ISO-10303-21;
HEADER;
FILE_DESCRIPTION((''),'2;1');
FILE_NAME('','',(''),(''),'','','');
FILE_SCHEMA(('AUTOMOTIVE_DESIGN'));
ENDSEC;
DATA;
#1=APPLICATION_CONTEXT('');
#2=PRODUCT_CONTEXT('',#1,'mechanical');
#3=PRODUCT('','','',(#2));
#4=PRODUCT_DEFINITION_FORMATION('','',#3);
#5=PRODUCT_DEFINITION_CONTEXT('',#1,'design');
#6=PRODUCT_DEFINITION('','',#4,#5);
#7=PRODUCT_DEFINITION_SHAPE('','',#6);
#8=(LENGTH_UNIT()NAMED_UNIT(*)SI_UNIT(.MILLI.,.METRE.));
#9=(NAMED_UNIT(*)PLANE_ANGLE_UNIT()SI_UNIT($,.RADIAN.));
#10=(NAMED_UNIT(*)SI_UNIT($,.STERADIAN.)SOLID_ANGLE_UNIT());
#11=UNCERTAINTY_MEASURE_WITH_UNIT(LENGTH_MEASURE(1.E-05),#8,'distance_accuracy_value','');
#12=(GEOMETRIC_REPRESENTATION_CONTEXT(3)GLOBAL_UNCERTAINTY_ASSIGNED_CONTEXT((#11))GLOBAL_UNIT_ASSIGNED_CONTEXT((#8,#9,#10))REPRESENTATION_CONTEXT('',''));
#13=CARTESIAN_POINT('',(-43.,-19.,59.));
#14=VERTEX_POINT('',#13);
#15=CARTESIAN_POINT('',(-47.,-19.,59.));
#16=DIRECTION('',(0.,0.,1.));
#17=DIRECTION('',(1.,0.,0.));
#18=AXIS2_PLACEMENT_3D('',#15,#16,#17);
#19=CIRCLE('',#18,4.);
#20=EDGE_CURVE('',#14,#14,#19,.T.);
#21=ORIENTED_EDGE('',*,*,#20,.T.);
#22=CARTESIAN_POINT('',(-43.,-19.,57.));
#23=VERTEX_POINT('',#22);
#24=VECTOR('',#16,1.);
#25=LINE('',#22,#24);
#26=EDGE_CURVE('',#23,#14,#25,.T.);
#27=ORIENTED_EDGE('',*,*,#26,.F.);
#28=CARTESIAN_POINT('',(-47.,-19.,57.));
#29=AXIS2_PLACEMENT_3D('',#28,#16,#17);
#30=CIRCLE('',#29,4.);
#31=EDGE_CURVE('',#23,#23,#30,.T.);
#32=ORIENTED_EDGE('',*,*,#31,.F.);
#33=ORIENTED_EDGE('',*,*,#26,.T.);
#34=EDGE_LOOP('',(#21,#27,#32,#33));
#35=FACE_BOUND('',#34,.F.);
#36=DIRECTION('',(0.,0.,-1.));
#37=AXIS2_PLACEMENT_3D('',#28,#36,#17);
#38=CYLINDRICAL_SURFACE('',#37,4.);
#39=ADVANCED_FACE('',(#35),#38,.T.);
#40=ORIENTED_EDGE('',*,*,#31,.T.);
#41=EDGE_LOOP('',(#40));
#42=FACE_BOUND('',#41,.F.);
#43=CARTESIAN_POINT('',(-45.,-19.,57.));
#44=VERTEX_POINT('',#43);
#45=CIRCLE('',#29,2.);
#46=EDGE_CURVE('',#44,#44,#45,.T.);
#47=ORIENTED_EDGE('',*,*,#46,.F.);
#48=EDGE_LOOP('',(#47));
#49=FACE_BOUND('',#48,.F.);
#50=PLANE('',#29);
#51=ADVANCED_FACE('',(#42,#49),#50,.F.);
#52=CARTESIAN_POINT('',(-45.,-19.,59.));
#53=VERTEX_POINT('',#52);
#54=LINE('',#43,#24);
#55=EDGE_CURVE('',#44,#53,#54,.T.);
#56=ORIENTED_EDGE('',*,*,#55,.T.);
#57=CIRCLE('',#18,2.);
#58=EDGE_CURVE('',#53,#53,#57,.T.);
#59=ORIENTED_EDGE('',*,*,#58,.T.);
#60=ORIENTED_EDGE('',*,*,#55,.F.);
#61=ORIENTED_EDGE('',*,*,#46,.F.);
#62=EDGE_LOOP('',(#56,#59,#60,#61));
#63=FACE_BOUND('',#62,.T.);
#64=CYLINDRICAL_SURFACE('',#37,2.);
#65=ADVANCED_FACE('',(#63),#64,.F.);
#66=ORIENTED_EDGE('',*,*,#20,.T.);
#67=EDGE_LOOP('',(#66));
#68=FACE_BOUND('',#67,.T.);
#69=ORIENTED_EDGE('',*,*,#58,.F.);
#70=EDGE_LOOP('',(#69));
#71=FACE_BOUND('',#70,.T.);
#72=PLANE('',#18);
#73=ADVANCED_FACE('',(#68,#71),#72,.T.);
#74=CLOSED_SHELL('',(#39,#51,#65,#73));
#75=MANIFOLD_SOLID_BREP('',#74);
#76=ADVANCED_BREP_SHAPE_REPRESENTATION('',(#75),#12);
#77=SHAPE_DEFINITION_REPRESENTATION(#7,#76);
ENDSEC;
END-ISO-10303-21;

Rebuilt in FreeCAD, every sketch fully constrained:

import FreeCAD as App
import Part
import Sketcher

doc = App.newDocument("Part")
body = doc.addObject("PartDesign::Body", "Body")

# Sketch on XY plane
sketch1 = doc.addObject("Sketcher::SketchObject", "Sketch")
body.addObject(sketch1)
sketch1.AttachmentSupport = (doc.XY_Plane, [""])
sketch1.MapMode = "FlatFace"
sketch1.addGeometry(Part.Circle(App.Vector(0, 0, 0), App.Vector(0, 0, 1), 2), False)
sketch1.addConstraint([
    Sketcher.Constraint("Coincident", 0, 3, -1, 1),
    Sketcher.Constraint("Diameter", 0, 4.0),
])
pad1 = doc.addObject("PartDesign::Pad", "Pad")
body.addObject(pad1)
pad1.Profile = sketch1
pad1.Length = 2
body2 = doc.addObject("PartDesign::Body", "Body001")

# Sketch on XY plane
sketch2 = doc.addObject("Sketcher::SketchObject", "Sketch001")
body2.addObject(sketch2)
sketch2.AttachmentSupport = (doc.getObject("XY_Plane001"), [""])
sketch2.MapMode = "FlatFace"
sketch2.addGeometry(Part.Circle(App.Vector(0, 0, 0), App.Vector(0, 0, 1), 4), False)
sketch2.addConstraint([
    Sketcher.Constraint("Coincident", 0, 3, -1, 1),
    Sketcher.Constraint("Diameter", 0, 8.0),
])
pad2 = doc.addObject("PartDesign::Pad", "Pad001")
body2.addObject(pad2)
pad2.Profile = sketch2
pad2.Length = 2
doc.recompute()

boolean = doc.addObject("PartDesign::Boolean", "Boolean")
body2.addObject(boolean)
boolean.Type = "Cut"
boolean.addObjects([body])
body3 = doc.addObject("PartDesign::Body", "Body002")
doc.recompute()

body2.Placement = App.Placement(App.Vector(-47, -19, 57), App.Rotation(App.Vector(0, 0, 1), 0))
boolean2 = doc.addObject("PartDesign::Boolean", "Boolean001")
body3.addObject(boolean2)
boolean2.Type = "Fuse"
boolean2.addObjects([body2])

doc.recompute()
